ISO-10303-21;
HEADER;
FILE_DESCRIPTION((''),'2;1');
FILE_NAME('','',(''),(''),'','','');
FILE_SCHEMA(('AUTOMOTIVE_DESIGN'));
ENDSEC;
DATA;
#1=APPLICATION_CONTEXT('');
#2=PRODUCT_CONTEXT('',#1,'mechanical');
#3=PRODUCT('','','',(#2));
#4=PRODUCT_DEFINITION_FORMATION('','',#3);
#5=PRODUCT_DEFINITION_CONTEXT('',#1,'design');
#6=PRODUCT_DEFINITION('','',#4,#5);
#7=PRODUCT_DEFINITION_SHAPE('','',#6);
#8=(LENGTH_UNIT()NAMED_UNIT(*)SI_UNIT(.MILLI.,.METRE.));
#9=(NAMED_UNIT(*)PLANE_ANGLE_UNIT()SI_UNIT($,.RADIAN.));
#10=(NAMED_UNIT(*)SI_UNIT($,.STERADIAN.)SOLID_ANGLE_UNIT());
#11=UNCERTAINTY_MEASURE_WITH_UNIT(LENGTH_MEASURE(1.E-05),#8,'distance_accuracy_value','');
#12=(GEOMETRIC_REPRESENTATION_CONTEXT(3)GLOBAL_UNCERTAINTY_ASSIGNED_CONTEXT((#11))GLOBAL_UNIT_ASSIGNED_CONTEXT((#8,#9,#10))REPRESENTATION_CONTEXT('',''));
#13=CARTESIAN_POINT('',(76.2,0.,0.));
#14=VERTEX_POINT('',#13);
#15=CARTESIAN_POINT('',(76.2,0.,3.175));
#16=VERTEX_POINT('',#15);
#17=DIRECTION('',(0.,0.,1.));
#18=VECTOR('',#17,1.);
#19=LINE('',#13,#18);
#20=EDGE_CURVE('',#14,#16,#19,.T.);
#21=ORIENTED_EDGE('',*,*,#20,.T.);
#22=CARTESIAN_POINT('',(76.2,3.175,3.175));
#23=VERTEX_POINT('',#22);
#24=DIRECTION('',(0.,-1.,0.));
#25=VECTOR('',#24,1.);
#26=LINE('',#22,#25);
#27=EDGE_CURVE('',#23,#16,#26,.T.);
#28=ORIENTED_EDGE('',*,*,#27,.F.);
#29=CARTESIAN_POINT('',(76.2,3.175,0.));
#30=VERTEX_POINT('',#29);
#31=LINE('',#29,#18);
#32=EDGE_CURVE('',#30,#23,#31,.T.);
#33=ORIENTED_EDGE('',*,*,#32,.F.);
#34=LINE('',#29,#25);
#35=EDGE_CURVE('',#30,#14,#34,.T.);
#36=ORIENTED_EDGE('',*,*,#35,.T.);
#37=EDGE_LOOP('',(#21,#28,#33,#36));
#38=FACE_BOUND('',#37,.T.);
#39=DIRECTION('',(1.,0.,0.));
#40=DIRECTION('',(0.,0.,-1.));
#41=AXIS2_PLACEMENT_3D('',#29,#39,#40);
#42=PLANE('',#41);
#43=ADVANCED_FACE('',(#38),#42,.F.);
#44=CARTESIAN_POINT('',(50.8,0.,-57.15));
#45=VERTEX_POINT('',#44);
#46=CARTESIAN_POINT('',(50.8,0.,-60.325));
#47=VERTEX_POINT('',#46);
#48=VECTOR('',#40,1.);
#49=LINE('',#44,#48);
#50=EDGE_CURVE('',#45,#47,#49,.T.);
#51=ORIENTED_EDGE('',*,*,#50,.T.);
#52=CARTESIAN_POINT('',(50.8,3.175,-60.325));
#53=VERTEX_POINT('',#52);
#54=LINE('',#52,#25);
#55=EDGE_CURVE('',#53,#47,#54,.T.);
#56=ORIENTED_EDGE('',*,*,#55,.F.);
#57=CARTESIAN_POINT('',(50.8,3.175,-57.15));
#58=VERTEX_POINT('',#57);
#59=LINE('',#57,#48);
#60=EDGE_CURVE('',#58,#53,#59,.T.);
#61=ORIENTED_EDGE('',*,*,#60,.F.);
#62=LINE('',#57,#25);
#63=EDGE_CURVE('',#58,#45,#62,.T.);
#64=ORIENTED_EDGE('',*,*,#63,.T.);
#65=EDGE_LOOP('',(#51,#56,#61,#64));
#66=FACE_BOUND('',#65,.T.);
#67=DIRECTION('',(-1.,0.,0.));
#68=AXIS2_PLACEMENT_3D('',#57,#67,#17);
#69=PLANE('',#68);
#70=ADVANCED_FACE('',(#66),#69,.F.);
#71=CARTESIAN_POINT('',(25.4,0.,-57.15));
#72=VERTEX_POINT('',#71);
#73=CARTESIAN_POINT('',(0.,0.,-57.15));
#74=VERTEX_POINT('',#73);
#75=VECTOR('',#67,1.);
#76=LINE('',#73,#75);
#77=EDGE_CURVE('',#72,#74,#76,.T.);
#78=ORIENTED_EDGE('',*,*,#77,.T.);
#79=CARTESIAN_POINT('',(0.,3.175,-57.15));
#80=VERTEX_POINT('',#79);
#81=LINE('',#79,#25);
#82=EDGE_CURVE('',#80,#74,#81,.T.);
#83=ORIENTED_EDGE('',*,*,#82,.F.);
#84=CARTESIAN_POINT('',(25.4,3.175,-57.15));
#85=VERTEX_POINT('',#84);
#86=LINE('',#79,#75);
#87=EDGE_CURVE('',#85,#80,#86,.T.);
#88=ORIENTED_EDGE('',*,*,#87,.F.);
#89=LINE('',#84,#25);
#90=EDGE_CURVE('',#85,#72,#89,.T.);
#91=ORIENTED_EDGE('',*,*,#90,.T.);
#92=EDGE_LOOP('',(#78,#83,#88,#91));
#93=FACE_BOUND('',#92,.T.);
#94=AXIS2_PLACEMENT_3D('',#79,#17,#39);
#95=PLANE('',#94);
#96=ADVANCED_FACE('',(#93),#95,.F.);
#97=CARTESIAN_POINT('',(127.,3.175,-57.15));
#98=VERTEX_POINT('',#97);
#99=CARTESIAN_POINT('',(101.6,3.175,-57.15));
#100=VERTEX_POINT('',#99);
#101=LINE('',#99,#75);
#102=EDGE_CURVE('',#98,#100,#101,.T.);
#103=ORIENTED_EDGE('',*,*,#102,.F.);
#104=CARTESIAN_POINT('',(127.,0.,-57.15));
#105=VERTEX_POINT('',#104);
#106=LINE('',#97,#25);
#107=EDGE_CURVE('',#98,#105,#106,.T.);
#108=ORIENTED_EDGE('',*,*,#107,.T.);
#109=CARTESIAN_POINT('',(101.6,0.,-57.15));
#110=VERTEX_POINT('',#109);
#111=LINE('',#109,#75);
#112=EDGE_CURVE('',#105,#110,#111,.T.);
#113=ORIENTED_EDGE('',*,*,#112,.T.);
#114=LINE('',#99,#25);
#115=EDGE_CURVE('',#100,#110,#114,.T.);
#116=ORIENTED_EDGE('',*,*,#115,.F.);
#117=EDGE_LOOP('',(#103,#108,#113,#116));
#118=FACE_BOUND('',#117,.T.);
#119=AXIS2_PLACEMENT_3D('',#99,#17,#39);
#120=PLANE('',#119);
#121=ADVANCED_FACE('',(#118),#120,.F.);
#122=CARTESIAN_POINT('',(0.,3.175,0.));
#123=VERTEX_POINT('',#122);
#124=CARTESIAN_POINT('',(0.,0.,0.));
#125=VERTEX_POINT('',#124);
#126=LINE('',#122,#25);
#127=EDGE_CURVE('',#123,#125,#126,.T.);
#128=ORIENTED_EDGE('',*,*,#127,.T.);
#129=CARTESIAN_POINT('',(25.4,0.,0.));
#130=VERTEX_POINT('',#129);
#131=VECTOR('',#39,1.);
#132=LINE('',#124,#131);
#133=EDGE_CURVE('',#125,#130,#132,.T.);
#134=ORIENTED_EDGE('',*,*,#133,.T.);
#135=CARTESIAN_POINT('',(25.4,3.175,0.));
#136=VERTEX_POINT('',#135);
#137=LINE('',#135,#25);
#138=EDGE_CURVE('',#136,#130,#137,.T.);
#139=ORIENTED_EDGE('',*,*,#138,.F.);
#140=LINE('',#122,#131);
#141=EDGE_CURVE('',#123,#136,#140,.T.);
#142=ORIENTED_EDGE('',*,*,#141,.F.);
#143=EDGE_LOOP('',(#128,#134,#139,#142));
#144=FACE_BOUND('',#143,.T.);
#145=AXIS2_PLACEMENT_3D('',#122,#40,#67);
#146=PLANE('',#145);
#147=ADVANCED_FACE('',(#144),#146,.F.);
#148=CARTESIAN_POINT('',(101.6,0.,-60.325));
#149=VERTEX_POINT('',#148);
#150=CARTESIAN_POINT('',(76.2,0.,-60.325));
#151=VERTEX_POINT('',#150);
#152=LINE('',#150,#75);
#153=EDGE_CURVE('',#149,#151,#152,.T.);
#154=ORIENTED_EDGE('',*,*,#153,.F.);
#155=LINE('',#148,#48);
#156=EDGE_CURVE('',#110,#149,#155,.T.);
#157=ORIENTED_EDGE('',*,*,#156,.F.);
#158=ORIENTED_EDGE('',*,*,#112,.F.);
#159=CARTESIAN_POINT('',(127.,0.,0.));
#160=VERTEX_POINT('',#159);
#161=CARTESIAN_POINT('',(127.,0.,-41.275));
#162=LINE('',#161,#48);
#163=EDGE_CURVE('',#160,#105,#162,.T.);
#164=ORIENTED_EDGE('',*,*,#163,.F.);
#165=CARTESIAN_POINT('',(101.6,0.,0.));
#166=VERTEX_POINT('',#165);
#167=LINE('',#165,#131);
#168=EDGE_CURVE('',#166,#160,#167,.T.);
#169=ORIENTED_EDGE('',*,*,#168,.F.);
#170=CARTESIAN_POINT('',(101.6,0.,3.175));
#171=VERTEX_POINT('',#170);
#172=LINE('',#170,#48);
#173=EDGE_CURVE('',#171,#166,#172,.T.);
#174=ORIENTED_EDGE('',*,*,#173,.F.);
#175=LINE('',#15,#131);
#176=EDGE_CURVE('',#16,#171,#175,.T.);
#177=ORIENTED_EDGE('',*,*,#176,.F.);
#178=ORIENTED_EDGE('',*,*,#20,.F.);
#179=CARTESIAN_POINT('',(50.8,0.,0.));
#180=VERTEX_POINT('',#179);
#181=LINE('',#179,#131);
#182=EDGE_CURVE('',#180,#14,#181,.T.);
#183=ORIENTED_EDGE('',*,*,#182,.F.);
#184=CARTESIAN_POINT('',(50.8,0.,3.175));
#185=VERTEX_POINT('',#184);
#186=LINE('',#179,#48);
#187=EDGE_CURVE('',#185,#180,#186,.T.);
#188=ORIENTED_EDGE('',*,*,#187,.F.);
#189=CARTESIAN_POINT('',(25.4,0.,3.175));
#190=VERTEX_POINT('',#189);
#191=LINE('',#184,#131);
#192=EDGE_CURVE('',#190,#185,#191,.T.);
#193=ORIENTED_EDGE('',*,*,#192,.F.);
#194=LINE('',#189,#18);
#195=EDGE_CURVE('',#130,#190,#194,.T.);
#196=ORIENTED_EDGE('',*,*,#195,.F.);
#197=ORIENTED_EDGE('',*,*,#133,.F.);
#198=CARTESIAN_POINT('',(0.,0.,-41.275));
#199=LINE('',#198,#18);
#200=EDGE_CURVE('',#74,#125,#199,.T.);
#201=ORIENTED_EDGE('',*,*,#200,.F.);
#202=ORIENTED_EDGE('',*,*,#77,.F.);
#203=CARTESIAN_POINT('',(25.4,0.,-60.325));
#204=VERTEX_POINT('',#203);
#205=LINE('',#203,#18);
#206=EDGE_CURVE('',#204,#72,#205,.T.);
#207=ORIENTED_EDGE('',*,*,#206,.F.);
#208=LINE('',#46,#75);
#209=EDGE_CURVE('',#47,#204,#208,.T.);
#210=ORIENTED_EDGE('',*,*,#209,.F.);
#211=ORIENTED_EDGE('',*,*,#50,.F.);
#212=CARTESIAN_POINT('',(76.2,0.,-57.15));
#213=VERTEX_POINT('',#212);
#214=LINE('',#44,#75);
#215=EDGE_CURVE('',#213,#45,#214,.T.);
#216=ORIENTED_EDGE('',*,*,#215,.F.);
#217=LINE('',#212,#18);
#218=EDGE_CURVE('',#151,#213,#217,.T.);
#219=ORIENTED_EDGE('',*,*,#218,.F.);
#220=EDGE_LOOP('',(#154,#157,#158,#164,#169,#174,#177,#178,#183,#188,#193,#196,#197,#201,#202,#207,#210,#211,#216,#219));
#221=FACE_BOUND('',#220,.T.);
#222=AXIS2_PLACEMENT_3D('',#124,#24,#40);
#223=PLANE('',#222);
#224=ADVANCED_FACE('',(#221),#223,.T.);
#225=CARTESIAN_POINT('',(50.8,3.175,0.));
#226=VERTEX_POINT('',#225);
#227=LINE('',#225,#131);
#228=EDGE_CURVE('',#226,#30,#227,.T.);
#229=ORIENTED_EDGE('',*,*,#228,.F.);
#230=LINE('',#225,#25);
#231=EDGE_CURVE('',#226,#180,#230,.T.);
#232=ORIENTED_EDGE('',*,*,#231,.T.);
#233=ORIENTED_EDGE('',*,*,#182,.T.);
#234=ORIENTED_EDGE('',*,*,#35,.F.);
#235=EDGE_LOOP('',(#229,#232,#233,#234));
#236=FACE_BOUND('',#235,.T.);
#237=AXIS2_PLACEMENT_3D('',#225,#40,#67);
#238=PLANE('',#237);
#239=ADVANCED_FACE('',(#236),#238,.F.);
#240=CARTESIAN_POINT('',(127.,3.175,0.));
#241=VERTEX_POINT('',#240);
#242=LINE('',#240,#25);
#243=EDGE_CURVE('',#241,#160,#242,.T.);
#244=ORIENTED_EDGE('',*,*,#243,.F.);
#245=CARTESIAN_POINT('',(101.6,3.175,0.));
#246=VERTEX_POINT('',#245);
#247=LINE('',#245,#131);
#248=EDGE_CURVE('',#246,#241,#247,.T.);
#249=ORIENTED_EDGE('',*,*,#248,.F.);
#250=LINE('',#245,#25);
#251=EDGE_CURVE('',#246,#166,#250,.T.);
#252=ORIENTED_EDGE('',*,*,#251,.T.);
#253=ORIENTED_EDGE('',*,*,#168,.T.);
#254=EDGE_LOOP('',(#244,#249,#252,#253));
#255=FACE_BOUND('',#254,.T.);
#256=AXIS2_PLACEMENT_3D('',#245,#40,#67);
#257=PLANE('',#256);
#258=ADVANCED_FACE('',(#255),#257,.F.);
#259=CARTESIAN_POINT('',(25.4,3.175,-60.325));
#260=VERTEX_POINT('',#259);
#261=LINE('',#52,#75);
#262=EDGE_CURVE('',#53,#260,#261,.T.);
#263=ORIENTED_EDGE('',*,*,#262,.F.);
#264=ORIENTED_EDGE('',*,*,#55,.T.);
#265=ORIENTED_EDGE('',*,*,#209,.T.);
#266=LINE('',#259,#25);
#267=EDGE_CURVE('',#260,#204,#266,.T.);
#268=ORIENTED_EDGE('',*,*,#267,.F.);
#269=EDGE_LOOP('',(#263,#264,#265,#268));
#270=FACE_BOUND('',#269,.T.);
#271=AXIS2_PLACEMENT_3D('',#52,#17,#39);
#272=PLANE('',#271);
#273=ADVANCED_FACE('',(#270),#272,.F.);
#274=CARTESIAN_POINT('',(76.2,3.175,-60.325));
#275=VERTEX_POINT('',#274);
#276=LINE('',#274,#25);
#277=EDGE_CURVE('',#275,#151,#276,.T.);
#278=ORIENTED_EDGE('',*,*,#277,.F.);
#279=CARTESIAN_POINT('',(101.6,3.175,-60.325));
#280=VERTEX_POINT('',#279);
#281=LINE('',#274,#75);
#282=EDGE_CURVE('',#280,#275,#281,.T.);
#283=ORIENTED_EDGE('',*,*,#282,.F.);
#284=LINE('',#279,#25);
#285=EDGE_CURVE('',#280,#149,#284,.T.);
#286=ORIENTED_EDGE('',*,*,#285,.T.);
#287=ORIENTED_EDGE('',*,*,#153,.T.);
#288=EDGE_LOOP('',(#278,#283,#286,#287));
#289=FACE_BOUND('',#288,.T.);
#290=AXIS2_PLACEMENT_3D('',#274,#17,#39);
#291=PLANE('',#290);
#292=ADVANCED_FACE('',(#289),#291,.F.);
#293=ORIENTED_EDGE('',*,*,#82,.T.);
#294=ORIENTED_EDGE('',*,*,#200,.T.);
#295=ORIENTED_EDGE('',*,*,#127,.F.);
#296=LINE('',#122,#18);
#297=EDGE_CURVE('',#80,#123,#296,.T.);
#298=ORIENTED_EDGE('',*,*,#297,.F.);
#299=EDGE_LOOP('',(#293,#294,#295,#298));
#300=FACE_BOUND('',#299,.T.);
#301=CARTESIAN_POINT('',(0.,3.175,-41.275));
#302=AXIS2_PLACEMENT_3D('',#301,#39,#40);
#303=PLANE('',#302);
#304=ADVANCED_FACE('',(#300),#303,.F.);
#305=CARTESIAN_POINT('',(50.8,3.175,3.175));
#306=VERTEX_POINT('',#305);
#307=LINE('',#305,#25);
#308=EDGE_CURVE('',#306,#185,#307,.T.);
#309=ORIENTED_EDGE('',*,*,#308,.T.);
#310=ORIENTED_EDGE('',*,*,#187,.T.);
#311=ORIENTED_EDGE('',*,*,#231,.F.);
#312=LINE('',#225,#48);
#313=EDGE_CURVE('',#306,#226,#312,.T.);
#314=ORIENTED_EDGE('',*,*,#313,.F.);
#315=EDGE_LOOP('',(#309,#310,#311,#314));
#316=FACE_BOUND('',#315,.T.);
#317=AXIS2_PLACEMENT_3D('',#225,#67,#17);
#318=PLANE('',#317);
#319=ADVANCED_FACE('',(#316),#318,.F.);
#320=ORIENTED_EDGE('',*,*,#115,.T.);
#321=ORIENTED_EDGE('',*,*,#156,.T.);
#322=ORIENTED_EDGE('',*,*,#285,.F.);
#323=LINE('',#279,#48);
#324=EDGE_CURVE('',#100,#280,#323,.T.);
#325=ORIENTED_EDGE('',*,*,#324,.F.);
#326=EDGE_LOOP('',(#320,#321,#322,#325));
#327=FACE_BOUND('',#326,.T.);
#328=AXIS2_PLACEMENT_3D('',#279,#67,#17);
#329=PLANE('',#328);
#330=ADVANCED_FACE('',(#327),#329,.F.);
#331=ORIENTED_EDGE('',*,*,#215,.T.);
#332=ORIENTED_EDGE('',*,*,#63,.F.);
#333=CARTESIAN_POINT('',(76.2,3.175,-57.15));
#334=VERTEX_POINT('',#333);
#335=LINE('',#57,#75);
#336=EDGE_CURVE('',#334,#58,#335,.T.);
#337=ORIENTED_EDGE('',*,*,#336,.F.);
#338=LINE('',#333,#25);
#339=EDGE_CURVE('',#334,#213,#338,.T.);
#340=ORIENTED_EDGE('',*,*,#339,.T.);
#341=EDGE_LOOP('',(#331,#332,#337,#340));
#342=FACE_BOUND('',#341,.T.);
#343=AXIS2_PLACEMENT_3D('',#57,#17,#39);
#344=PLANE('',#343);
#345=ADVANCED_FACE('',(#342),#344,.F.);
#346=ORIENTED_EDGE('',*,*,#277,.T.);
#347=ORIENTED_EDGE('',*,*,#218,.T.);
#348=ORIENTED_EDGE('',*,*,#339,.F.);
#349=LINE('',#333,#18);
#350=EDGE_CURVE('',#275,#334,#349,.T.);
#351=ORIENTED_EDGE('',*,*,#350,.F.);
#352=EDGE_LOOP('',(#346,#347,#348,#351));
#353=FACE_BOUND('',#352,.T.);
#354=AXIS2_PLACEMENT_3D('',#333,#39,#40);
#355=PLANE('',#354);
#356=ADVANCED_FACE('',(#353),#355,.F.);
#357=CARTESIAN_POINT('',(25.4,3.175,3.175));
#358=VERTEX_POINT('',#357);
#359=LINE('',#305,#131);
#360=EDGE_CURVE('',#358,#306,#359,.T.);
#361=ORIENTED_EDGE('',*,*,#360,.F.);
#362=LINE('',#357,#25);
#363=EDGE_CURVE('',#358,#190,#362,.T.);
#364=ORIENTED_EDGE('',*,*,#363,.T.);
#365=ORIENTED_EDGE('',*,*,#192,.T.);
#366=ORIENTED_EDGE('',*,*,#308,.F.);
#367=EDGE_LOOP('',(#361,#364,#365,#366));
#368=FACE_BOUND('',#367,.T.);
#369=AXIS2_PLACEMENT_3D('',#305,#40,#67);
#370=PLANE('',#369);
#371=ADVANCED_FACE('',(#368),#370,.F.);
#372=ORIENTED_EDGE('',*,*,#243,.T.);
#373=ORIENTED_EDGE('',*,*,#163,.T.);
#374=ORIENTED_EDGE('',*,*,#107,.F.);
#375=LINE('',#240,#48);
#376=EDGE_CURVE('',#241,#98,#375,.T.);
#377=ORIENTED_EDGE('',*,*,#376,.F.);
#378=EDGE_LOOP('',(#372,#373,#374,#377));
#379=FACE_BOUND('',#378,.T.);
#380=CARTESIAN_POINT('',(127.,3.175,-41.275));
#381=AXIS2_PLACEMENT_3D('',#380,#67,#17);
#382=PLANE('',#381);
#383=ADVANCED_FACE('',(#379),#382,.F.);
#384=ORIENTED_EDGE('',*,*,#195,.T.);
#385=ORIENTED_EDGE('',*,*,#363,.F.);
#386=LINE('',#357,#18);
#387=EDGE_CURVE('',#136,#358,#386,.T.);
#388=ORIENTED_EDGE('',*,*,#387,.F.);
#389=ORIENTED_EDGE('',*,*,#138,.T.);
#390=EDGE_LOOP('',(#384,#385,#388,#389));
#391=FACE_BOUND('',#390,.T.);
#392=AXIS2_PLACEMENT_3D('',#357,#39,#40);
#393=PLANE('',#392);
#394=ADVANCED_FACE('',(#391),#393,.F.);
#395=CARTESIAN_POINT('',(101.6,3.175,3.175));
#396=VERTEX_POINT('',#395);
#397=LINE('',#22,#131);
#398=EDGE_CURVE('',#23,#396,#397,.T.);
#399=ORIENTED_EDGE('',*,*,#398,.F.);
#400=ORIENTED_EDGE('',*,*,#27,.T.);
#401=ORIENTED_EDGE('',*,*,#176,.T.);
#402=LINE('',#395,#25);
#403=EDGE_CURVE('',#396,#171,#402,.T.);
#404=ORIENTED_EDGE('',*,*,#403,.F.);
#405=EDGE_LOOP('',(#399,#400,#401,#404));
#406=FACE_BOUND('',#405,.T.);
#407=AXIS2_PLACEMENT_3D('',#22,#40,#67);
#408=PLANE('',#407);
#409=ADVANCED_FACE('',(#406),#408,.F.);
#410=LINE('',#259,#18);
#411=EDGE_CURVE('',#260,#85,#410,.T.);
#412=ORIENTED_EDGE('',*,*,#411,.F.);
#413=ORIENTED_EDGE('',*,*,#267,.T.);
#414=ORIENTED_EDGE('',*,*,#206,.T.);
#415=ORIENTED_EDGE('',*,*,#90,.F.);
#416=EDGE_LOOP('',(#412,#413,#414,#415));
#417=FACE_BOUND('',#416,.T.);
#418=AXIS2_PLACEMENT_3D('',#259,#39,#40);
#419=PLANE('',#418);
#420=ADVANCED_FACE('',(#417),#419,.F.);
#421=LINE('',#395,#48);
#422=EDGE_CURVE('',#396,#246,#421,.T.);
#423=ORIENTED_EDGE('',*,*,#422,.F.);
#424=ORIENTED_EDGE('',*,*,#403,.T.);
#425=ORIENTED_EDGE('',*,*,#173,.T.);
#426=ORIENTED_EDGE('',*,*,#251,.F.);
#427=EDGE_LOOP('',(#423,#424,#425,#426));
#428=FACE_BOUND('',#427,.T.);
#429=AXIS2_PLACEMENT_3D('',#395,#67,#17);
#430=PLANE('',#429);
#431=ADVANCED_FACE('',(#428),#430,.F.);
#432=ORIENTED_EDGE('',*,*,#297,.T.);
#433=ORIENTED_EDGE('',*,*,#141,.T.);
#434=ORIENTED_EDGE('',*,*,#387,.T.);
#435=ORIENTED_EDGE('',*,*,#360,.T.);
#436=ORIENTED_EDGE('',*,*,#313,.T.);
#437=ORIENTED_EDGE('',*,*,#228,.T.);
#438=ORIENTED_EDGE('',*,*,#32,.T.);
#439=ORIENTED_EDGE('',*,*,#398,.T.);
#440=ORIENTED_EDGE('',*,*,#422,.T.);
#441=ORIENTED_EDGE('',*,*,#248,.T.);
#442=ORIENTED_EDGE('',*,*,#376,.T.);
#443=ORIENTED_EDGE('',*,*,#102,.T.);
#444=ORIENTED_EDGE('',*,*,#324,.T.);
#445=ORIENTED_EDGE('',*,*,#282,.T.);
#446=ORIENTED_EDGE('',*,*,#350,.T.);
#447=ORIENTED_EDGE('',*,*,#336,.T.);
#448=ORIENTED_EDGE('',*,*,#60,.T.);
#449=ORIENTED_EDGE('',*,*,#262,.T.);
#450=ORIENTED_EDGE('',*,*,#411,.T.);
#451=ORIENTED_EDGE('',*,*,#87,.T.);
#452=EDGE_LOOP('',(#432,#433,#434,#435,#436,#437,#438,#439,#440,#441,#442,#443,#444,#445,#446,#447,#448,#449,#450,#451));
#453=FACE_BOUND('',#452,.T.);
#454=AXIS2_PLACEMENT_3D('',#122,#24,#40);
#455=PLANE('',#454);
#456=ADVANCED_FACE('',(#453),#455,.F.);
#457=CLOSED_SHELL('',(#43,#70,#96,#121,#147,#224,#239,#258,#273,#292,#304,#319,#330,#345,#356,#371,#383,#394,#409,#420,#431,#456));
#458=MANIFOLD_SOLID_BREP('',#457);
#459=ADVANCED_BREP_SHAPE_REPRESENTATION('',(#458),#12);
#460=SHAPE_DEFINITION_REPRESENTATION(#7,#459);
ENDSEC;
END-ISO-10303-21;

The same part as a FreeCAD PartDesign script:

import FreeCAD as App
import Part
import Sketcher
from FreeCAD import Vector
Q = App.Units.Quantity

doc = App.newDocument("Part")
body = doc.addObject("PartDesign::Body", "Body")

sketch1 = doc.addObject("Sketcher::SketchObject", "Sketch")
body.addObject(sketch1)
sketch1.AttachmentSupport = (doc.XZ_Plane, [""])
sketch1.MapMode = "FlatFace"
sketch1.addGeometry([
    Part.LineSegment(Vector(0, 0, 0), Vector(25.4, 0, 0)),
    Part.LineSegment(Vector(25.4, 0, 0), Vector(25.4, 3.175, 0)),
    Part.LineSegment(Vector(25.4, 3.175, 0), Vector(50.8, 3.175, 0)),
    Part.LineSegment(Vector(50.8, 3.175, 0), Vector(50.8, 0, 0)),
    Part.LineSegment(Vector(50.8, 0, 0), Vector(76.2, 0, 0)),
    Part.LineSegment(Vector(76.2, 0, 0), Vector(76.2, 3.175, 0)),
    Part.LineSegment(Vector(76.2, 3.175, 0), Vector(101.6, 3.175, 0)),
    Part.LineSegment(Vector(101.6, 3.175, 0), Vector(101.6, 0, 0)),
    Part.LineSegment(Vector(101.6, 0, 0), Vector(127, 0, 0)),
    Part.LineSegment(Vector(127, 0, 0), Vector(127, -57.15, 0)),
    Part.LineSegment(Vector(127, -57.15, 0), Vector(101.6, -57.15, 0)),
    Part.LineSegment(Vector(101.6, -57.15, 0), Vector(101.6, -60.325, 0)),
    Part.LineSegment(Vector(101.6, -60.325, 0), Vector(76.2, -60.325, 0)),
    Part.LineSegment(Vector(76.2, -60.325, 0), Vector(76.2, -57.15, 0)),
    Part.LineSegment(Vector(76.2, -57.15, 0), Vector(50.8, -57.15, 0)),
    Part.LineSegment(Vector(50.8, -57.15, 0), Vector(50.8, -60.325, 0)),
    Part.LineSegment(Vector(50.8, -60.325, 0), Vector(25.4, -60.325, 0)),
    Part.LineSegment(Vector(25.4, -60.325, 0), Vector(25.4, -57.15, 0)),
    Part.LineSegment(Vector(25.4, -57.15, 0), Vector(0, -57.15, 0)),
    Part.LineSegment(Vector(0, -57.15, 0), Vector(0, 0, 0)),
], False)
sketch1.addConstraint([
    Sketcher.Constraint("Coincident", 0, 2, 1, 1),
    Sketcher.Constraint("Coincident", 1, 2, 2, 1),
    Sketcher.Constraint("Coincident", 2, 2, 3, 1),
    Sketcher.Constraint("Coincident", 3, 2, 4, 1),
    Sketcher.Constraint("Coincident", 4, 2, 5, 1),
    Sketcher.Constraint("Coincident", 5, 2, 6, 1),
    Sketcher.Constraint("Coincident", 6, 2, 7, 1),
    Sketcher.Constraint("Coincident", 7, 2, 8, 1),
    Sketcher.Constraint("Coincident", 8, 2, 9, 1),
    Sketcher.Constraint("Coincident", 9, 2, 10, 1),
    Sketcher.Constraint("Coincident", 10, 2, 11, 1),
    Sketcher.Constraint("Coincident", 11, 2, 12, 1),
    Sketcher.Constraint("Coincident", 12, 2, 13, 1),
    Sketcher.Constraint("Coincident", 13, 2, 14, 1),
    Sketcher.Constraint("Coincident", 14, 2, 15, 1),
    Sketcher.Constraint("Coincident", 15, 2, 16, 1),
    Sketcher.Constraint("Coincident", 16, 2, 17, 1),
    Sketcher.Constraint("Coincident", 17, 2, 18, 1),
    Sketcher.Constraint("Coincident", 18, 2, 19, 1),
    Sketcher.Constraint("Coincident", 19, 2, 0, 1),
    Sketcher.Constraint("Horizontal", 0),
    Sketcher.Constraint("Vertical", 1),
    Sketcher.Constraint("Horizontal", 2),
    Sketcher.Constraint("Vertical", 3),
    Sketcher.Constraint("Horizontal", 4),
    Sketcher.Constraint("Vertical", 5),
    Sketcher.Constraint("Horizontal", 6),
    Sketcher.Constraint("Vertical", 7),
    Sketcher.Constraint("Horizontal", 8),
    Sketcher.Constraint("Vertical", 9),
    Sketcher.Constraint("Horizontal", 10),
    Sketcher.Constraint("Vertical", 11),
    Sketcher.Constraint("Horizontal", 12),
    Sketcher.Constraint("Vertical", 13),
    Sketcher.Constraint("Horizontal", 14),
    Sketcher.Constraint("Vertical", 15),
    Sketcher.Constraint("Horizontal", 16),
    Sketcher.Constraint("Vertical", 17),
    Sketcher.Constraint("Horizontal", 18),
    Sketcher.Constraint("Vertical", 19),
    Sketcher.Constraint("Coincident", 19, 2, -1, 1),
    Sketcher.Constraint("PointOnObject", 3, 2, -1),
    Sketcher.Constraint("PointOnObject", 7, 2, -1),
    Sketcher.Constraint("Horizontal", 2, 2, 5, 2),
    Sketcher.Constraint("Horizontal", 10, 2, 13, 2),
    Sketcher.Constraint("Horizontal", 12, 2, 15, 2),
    Sketcher.Constraint("Horizontal", 14, 2, 17, 2),
    Sketcher.Constraint("Vertical", 7, 2, 10, 2),
    Sketcher.Constraint("Vertical", 5, 2, 12, 2),
    Sketcher.Constraint("Vertical", 3, 2, 14, 2),
    Sketcher.Constraint("Vertical", 1, 2, 16, 2),
    Sketcher.Constraint("Equal", 0, 2),
    Sketcher.Constraint("Equal", 2, 4),
    Sketcher.Constraint("Equal", 4, 6),
    Sketcher.Constraint("Equal", 6, 8),
    Sketcher.Constraint("Equal", 7, 11),
    Sketcher.Constraint("DistanceX", 0, 1, 0, 2, Q("1 in")),
    Sketcher.Constraint("DistanceY", 9, 2, 9, 1, Q("2.25 in")),
    Sketcher.Constraint("DistanceY", 11, 2, 6, 2, Q("2.5 in")),
])
pad1 = doc.addObject("PartDesign::Pad", "Pad")
body.addObject(pad1)
pad1.Profile = sketch1
pad1.Length = Q("0.125 in")
pad1.Reversed = True

doc.recompute()
